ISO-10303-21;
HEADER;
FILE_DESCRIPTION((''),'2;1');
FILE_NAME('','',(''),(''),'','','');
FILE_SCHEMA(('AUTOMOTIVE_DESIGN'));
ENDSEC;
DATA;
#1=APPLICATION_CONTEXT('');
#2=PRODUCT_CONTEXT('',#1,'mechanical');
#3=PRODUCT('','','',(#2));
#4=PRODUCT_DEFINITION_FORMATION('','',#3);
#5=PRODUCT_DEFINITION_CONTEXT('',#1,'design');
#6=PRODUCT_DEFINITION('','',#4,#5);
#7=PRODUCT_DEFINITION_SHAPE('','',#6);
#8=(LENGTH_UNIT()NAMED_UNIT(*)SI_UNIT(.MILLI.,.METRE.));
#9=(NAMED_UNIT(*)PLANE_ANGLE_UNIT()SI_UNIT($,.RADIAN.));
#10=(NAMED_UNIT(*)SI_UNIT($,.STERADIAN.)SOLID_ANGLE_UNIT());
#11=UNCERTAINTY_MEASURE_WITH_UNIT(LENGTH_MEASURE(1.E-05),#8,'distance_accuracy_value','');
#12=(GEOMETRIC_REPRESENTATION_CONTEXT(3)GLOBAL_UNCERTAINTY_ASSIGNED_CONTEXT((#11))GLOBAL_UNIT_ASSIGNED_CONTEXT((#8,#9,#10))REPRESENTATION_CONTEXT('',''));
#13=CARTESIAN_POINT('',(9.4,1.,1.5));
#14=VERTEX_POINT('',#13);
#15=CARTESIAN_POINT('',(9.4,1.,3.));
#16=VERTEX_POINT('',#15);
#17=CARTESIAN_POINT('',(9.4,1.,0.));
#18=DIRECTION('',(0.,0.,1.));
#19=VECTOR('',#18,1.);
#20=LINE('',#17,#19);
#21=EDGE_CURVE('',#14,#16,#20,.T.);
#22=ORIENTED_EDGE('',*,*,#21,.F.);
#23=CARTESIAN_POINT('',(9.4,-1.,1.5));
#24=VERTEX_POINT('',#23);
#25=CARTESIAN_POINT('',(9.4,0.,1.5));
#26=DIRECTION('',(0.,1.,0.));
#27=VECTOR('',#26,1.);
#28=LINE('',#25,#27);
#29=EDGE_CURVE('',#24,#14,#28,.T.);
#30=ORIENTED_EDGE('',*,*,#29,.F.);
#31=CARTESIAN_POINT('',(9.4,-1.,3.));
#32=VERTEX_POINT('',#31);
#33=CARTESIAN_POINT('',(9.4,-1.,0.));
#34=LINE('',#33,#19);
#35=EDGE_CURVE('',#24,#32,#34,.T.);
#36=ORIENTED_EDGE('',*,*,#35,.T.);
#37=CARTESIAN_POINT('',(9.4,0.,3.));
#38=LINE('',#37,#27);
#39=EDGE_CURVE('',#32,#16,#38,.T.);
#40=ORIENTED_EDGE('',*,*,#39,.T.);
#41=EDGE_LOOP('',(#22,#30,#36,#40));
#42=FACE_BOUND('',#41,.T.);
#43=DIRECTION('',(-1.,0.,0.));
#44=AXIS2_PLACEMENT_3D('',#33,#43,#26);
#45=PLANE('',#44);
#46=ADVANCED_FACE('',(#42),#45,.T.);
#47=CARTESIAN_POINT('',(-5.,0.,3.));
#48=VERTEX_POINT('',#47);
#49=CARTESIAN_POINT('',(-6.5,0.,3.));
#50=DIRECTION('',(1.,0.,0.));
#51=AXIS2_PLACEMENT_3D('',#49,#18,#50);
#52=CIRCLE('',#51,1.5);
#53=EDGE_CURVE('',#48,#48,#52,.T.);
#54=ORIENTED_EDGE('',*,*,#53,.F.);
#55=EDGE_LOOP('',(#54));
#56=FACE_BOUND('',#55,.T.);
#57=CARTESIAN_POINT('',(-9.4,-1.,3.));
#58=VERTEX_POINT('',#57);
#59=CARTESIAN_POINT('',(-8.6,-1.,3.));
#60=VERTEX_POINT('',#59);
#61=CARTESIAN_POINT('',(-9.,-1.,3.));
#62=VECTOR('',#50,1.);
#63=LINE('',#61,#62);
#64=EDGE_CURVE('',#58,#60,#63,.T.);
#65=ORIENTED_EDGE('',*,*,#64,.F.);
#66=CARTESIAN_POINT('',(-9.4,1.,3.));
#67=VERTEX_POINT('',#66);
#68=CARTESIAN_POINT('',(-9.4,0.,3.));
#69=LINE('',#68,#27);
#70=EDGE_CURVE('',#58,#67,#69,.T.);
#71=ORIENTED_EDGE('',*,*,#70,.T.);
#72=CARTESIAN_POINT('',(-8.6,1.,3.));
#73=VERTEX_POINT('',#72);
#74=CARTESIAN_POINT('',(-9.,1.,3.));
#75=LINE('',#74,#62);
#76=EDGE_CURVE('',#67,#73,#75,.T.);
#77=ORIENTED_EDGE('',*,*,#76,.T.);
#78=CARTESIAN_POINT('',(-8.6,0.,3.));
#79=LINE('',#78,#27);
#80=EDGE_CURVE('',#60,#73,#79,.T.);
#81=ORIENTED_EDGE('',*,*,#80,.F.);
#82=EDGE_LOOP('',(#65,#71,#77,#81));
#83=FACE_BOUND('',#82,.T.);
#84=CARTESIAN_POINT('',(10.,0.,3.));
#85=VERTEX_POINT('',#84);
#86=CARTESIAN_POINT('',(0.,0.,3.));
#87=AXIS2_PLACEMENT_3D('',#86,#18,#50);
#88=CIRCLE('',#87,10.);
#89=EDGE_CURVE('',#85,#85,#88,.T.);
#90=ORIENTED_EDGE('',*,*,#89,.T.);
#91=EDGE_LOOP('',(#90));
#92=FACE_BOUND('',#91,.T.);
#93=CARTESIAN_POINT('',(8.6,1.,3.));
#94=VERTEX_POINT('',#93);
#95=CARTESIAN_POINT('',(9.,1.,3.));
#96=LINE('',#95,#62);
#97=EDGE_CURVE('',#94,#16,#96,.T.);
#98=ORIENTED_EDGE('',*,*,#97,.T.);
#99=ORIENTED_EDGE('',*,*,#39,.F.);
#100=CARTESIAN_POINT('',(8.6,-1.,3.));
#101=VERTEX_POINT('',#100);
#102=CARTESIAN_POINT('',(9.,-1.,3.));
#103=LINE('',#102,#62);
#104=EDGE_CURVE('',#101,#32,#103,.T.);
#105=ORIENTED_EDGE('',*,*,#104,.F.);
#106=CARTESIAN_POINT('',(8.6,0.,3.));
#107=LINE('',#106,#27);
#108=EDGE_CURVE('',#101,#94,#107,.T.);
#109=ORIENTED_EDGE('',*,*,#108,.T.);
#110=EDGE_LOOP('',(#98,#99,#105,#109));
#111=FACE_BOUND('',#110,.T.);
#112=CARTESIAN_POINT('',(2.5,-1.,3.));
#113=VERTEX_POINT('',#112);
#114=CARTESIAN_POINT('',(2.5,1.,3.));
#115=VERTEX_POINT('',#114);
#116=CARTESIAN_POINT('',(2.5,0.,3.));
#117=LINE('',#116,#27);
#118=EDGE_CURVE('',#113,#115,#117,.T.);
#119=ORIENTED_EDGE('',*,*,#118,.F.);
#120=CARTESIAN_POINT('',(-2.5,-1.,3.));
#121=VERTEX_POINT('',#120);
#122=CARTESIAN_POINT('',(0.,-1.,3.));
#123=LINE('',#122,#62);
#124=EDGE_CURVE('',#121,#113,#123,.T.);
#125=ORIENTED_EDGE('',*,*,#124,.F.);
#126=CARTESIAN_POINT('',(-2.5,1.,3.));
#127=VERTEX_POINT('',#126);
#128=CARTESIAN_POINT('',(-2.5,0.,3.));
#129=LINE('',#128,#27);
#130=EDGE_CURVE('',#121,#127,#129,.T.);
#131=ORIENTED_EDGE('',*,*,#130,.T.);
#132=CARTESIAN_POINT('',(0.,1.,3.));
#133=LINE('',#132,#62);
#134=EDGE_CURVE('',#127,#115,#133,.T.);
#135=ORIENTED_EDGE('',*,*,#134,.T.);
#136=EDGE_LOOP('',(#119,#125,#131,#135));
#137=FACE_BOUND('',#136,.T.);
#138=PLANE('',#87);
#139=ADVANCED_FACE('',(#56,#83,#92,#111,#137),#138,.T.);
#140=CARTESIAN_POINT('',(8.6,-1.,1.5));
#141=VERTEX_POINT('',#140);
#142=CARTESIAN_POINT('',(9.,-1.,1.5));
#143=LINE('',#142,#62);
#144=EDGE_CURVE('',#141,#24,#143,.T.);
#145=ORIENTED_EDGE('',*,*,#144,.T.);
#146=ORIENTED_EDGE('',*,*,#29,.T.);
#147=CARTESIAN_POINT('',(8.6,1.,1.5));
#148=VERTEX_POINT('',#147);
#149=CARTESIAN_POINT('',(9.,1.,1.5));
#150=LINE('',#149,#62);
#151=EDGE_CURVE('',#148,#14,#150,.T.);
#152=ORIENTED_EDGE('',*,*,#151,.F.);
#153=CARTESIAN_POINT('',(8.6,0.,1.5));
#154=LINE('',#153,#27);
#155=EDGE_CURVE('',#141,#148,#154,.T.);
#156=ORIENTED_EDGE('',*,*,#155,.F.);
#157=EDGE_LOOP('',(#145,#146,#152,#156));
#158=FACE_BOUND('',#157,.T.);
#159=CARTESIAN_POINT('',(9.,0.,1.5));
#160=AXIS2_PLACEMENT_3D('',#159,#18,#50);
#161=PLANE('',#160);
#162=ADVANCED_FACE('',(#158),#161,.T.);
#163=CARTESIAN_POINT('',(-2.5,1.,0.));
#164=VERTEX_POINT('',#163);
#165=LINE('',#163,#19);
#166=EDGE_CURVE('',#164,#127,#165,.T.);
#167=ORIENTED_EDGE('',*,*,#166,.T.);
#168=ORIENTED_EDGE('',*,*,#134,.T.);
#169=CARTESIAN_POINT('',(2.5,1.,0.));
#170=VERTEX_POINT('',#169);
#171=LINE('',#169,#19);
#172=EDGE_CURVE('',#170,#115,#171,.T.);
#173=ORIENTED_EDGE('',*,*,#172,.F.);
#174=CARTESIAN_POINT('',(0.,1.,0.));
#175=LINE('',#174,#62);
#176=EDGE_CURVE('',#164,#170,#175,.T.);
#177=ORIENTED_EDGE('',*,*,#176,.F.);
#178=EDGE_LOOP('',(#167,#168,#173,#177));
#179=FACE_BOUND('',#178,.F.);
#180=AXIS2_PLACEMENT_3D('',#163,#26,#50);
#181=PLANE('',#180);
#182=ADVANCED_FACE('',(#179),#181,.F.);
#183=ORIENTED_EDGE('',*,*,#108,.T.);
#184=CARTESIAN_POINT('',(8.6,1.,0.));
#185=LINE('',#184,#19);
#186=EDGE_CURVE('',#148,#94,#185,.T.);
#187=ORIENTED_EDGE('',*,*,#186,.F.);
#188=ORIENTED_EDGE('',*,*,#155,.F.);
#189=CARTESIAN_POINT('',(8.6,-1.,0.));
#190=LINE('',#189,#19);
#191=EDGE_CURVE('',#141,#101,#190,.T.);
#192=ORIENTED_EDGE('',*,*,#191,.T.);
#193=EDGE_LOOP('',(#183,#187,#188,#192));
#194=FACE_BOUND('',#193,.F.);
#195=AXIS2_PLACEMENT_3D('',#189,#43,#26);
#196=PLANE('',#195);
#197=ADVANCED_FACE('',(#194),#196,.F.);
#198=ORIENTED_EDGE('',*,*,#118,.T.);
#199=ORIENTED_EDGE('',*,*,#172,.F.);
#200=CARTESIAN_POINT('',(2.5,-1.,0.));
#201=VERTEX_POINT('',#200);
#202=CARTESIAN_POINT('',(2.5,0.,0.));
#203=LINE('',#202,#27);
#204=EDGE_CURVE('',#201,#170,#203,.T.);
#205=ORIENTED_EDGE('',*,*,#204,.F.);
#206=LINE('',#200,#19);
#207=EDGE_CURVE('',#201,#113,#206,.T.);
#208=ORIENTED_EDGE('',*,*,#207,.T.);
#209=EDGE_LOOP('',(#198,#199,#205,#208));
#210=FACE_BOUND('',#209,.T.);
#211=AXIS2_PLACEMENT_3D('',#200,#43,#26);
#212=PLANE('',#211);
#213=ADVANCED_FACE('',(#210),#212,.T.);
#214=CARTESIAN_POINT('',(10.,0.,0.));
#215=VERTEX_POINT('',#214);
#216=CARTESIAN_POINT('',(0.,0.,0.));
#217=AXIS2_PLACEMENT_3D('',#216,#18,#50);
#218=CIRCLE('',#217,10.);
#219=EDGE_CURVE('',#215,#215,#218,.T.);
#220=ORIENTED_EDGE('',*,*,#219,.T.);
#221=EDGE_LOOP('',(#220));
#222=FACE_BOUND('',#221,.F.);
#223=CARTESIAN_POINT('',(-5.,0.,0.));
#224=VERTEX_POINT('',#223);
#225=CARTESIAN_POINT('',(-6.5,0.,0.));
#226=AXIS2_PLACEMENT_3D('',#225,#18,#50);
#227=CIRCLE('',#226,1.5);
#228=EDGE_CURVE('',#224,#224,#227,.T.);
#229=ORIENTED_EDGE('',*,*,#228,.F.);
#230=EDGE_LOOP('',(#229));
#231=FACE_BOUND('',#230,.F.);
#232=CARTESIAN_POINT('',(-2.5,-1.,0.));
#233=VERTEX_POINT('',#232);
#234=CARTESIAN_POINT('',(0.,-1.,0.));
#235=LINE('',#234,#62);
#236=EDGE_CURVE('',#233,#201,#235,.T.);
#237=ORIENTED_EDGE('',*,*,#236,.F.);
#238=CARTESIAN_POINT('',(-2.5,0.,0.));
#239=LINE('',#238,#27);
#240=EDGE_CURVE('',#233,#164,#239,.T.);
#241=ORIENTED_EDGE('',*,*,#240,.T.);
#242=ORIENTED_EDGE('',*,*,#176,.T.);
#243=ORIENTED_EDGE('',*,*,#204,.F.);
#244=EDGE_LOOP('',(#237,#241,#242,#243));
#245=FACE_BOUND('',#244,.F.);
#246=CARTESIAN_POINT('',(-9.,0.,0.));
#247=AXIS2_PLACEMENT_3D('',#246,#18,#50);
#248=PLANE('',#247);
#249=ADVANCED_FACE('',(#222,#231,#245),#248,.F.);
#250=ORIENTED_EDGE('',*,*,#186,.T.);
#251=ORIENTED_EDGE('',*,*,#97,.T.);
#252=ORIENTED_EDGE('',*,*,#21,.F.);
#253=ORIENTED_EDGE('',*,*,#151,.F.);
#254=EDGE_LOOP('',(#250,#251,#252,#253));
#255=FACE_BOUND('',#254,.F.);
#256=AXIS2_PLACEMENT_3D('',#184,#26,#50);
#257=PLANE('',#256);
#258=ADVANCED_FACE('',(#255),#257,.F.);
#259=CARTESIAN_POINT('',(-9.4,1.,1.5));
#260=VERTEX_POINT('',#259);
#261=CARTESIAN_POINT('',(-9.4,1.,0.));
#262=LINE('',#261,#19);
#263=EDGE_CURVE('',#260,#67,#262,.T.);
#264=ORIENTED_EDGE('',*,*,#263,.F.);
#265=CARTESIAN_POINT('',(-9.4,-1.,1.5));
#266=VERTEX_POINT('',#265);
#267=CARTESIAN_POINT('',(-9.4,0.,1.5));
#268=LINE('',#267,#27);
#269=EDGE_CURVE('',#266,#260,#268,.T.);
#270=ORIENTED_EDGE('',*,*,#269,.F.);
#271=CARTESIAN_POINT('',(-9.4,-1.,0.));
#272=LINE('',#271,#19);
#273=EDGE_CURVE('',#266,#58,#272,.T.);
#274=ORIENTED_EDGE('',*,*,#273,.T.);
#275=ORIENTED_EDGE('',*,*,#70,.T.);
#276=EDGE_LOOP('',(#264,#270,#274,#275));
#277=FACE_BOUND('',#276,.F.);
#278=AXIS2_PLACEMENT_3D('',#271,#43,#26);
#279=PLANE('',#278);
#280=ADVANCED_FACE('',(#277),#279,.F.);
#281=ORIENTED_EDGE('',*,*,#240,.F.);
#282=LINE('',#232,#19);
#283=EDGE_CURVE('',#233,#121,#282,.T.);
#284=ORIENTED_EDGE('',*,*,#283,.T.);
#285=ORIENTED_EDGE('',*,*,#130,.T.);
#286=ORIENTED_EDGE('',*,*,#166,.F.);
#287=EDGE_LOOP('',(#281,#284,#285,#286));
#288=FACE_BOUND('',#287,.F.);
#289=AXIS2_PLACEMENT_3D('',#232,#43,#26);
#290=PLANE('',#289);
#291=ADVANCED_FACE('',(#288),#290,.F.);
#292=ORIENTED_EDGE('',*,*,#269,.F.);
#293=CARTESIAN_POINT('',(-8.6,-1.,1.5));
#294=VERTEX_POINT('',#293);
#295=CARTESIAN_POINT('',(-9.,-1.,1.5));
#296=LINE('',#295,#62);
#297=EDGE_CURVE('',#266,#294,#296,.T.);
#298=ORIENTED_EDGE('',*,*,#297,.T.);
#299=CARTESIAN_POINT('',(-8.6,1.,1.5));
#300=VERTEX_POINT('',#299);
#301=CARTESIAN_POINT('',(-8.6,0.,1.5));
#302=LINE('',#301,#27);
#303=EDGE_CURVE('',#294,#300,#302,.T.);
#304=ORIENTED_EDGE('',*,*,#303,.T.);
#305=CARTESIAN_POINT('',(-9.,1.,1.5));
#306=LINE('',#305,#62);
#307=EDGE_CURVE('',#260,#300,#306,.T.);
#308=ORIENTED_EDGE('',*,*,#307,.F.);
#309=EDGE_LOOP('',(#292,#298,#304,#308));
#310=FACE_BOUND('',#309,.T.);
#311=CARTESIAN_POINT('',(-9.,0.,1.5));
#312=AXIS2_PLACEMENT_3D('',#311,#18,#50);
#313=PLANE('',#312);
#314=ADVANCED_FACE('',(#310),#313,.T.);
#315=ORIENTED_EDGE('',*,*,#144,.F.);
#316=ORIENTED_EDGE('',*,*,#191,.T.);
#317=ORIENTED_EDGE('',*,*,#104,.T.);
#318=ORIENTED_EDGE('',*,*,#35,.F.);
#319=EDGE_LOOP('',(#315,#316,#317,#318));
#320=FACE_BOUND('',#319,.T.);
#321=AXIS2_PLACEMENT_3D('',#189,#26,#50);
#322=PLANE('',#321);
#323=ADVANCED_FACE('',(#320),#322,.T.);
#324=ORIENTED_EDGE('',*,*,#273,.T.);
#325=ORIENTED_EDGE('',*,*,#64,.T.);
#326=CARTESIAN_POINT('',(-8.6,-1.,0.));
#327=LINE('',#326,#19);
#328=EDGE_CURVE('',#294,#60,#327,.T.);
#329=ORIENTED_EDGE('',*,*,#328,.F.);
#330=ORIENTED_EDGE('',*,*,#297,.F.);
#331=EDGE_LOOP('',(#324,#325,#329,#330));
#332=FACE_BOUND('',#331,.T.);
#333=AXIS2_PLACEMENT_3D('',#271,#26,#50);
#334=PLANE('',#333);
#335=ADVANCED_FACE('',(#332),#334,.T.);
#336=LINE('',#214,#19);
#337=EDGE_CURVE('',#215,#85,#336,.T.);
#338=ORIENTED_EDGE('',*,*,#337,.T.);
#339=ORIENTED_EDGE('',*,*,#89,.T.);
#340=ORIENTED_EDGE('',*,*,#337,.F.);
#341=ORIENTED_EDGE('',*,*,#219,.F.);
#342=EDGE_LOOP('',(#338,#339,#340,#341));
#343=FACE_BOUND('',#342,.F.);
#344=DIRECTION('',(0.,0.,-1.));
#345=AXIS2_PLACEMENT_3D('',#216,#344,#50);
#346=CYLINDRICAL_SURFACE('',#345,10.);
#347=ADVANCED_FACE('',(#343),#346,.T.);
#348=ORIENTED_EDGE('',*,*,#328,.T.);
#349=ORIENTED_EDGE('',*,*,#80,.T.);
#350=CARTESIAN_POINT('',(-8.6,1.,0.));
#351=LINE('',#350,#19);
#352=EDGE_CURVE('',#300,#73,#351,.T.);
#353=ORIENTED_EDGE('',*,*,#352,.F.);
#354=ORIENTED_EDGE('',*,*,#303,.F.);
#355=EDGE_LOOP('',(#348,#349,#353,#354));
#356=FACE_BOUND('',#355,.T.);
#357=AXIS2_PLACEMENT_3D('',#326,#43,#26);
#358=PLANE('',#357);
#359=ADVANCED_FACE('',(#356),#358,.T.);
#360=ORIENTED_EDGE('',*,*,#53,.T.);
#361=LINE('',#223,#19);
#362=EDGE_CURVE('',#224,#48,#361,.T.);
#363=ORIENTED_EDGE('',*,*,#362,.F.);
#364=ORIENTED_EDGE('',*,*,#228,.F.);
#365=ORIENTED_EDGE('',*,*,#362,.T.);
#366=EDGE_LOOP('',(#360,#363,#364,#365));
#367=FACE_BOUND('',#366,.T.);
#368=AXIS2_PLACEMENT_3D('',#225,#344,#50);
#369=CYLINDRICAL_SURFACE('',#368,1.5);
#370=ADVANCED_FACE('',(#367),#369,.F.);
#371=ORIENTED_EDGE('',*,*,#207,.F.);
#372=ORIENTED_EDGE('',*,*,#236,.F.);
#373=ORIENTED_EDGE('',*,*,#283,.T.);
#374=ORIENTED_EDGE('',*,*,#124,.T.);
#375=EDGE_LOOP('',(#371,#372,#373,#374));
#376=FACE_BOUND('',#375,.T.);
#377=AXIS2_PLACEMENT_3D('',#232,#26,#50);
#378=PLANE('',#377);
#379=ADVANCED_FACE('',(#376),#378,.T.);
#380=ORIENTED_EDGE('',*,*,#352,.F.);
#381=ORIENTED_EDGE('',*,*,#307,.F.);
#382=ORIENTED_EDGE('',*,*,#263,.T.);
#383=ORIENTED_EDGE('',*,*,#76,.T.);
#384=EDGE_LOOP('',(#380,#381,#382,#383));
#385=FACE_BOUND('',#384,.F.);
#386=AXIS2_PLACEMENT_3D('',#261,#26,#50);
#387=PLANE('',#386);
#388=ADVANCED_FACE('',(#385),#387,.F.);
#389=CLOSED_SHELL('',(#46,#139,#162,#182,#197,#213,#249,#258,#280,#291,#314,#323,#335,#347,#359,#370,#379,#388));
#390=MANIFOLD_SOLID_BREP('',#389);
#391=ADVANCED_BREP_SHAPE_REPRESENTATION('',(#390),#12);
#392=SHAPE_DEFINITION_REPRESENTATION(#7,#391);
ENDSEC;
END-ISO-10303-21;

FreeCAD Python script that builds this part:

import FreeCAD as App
import Part
import Sketcher

V = App.Vector
Q = App.Units.Quantity

doc = App.newDocument("Part")
body = doc.addObject("PartDesign::Body", "Body")

# Sketch on XY plane
sketch1 = doc.addObject("Sketcher::SketchObject", "Sketch")
body.addObject(sketch1)
sketch1.AttachmentSupport = (doc.XY_Plane, [""])
sketch1.MapMode = "FlatFace"
sketch1.addGeometry(Part.Circle(V(0, 0, 0), V(0, 0, 1), 10), False)
sketch1.addGeometry(Part.LineSegment(V(-8.6, -1, 0), V(-9.4, -1, 0)), False)
sketch1.addGeometry(Part.LineSegment(V(-9.4, -1, 0), V(-9.4, 1, 0)), False)
sketch1.addGeometry(Part.LineSegment(V(-9.4, 1, 0), V(-8.6, 1, 0)), False)
sketch1.addGeometry(Part.LineSegment(V(-8.6, 1, 0), V(-8.6, -1, 0)), False)
sketch1.addGeometry(Part.Circle(V(-6.5, 0, 0), V(0, 0, 1), 1.5), False)
sketch1.addGeometry(Part.LineSegment(V(2.5, -1, 0), V(-2.5, -1, 0)), False)
sketch1.addGeometry(Part.LineSegment(V(-2.5, -1, 0), V(-2.5, 1, 0)), False)
sketch1.addGeometry(Part.LineSegment(V(-2.5, 1, 0), V(2.5, 1, 0)), False)
sketch1.addGeometry(Part.LineSegment(V(2.5, 1, 0), V(2.5, -1, 0)), False)
sketch1.addGeometry(Part.LineSegment(V(9.4, -1, 0), V(8.6, -1, 0)), False)
sketch1.addGeometry(Part.LineSegment(V(8.6, -1, 0), V(8.6, 1, 0)), False)
sketch1.addGeometry(Part.LineSegment(V(8.6, 1, 0), V(9.4, 1, 0)), False)
sketch1.addGeometry(Part.LineSegment(V(9.4, 1, 0), V(9.4, -1, 0)), False)
sketch1.addConstraint(Sketcher.Constraint("Coincident", 1, 2, 2, 1))
sketch1.addConstraint(Sketcher.Constraint("Coincident", 2, 2, 3, 1))
sketch1.addConstraint(Sketcher.Constraint("Coincident", 3, 2, 4, 1))
sketch1.addConstraint(Sketcher.Constraint("Coincident", 4, 2, 1, 1))
sketch1.addConstraint(Sketcher.Constraint("Coincident", 6, 2, 7, 1))
sketch1.addConstraint(Sketcher.Constraint("Coincident", 7, 2, 8, 1))
sketch1.addConstraint(Sketcher.Constraint("Coincident", 8, 2, 9, 1))
sketch1.addConstraint(Sketcher.Constraint("Coincident", 9, 2, 6, 1))
sketch1.addConstraint(Sketcher.Constraint("Coincident", 10, 2, 11, 1))
sketch1.addConstraint(Sketcher.Constraint("Coincident", 11, 2, 12, 1))
sketch1.addConstraint(Sketcher.Constraint("Coincident", 12, 2, 13, 1))
sketch1.addConstraint(Sketcher.Constraint("Coincident", 13, 2, 10, 1))
sketch1.addConstraint(Sketcher.Constraint("Horizontal", 1))
sketch1.addConstraint(Sketcher.Constraint("Vertical", 2))
sketch1.addConstraint(Sketcher.Constraint("Horizontal", 3))
sketch1.addConstraint(Sketcher.Constraint("Vertical", 4))
sketch1.addConstraint(Sketcher.Constraint("Horizontal", 6))
sketch1.addConstraint(Sketcher.Constraint("Vertical", 7))
sketch1.addConstraint(Sketcher.Constraint("Horizontal", 8))
sketch1.addConstraint(Sketcher.Constraint("Vertical", 9))
sketch1.addConstraint(Sketcher.Constraint("Horizontal", 10))
sketch1.addConstraint(Sketcher.Constraint("Vertical", 11))
sketch1.addConstraint(Sketcher.Constraint("Horizontal", 12))
sketch1.addConstraint(Sketcher.Constraint("Vertical", 13))
sketch1.addConstraint(Sketcher.Constraint("Coincident", 0, 3, -1, 1))
sketch1.addConstraint(Sketcher.Constraint("Symmetric", 6, 2, 8, 2, -1, 1))
sketch1.addConstraint(Sketcher.Constraint("Symmetric", 3, 2, 10, 2, -1, 1))
sketch1.addConstraint(Sketcher.Constraint("Symmetric", 1, 2, 12, 2, -1, 1))
sketch1.addConstraint(Sketcher.Constraint("PointOnObject", 5, 3, -1))
sketch1.addConstraint(Sketcher.Constraint("Horizontal", 4, 2, 6, 2))
sketch1.addConstraint(Sketcher.Constraint("Horizontal", 3, 2, 7, 2))
sketch1.addConstraint(Sketcher.Constraint("Diameter", 0, Q("20 mm")))
sketch1.addConstraint(Sketcher.Constraint("Diameter", 5, Q("3 mm")))
sketch1.addConstraint(Sketcher.Constraint("DistanceX", 6, 2, 6, 1, Q("5 mm")))
sketch1.addConstraint(Sketcher.Constraint("DistanceY", 2, 1, 2, 2, Q("2 mm")))
sketch1.addConstraint(Sketcher.Constraint("DistanceX", 1, 2, 1, 1, Q("0.8 mm")))
sketch1.addConstraint(Sketcher.Constraint("DistanceX", 5, 3, 6, 2, Q("4 mm")))
sketch1.addConstraint(Sketcher.Constraint("DistanceX", 1, 2, -1, 1, Q("9.4 mm")))
pad1 = doc.addObject("PartDesign::Pad", "Pad")
body.addObject(pad1)
pad1.Profile = sketch1
pad1.Length = 3

# Sketch on XY plane
sketch2 = doc.addObject("Sketcher::SketchObject", "Sketch001")
body.addObject(sketch2)
sketch2.AttachmentSupport = (doc.XY_Plane, [""])
sketch2.MapMode = "FlatFace"
sketch2.addGeometry(Part.LineSegment(V(-9.4, 1, 0), V(-9.4, -1, 0)), False)
sketch2.addGeometry(Part.LineSegment(V(-9.4, -1, 0), V(-8.6, -1, 0)), False)
sketch2.addGeometry(Part.LineSegment(V(-8.6, -1, 0), V(-8.6, 1, 0)), False)
sketch2.addGeometry(Part.LineSegment(V(-8.6, 1, 0), V(-9.4, 1, 0)), False)
sketch2.addGeometry(Part.LineSegment(V(8.6, 1, 0), V(8.6, -1, 0)), False)
sketch2.addGeometry(Part.LineSegment(V(8.6, -1, 0), V(9.4, -1, 0)), False)
sketch2.addGeometry(Part.LineSegment(V(9.4, -1, 0), V(9.4, 1, 0)), False)
sketch2.addGeometry(Part.LineSegment(V(9.4, 1, 0), V(8.6, 1, 0)), False)
sketch2.addConstraint(Sketcher.Constraint("Coincident", 0, 2, 1, 1))
sketch2.addConstraint(Sketcher.Constraint("Coincident", 1, 2, 2, 1))
sketch2.addConstraint(Sketcher.Constraint("Coincident", 2, 2, 3, 1))
sketch2.addConstraint(Sketcher.Constraint("Coincident", 3, 2, 0, 1))
sketch2.addConstraint(Sketcher.Constraint("Coincident", 4, 2, 5, 1))
sketch2.addConstraint(Sketcher.Constraint("Coincident", 5, 2, 6, 1))
sketch2.addConstraint(Sketcher.Constraint("Coincident", 6, 2, 7, 1))
sketch2.addConstraint(Sketcher.Constraint("Coincident", 7, 2, 4, 1))
sketch2.addConstraint(Sketcher.Constraint("Vertical", 0))
sketch2.addConstraint(Sketcher.Constraint("Horizontal", 1))
sketch2.addConstraint(Sketcher.Constraint("Vertical", 2))
sketch2.addConstraint(Sketcher.Constraint("Horizontal", 3))
sketch2.addConstraint(Sketcher.Constraint("Vertical", 4))
sketch2.addConstraint(Sketcher.Constraint("Horizontal", 5))
sketch2.addConstraint(Sketcher.Constraint("Vertical", 6))
sketch2.addConstraint(Sketcher.Constraint("Horizontal", 7))
sketch2.addConstraint(Sketcher.Constraint("Symmetric", 2, 2, 4, 2, -1, 1))
sketch2.addConstraint(Sketcher.Constraint("Symmetric", 0, 2, 6, 2, -1, 1))
sketch2.addConstraint(Sketcher.Constraint("Horizontal", 1, 2, 4, 2))
sketch2.addConstraint(Sketcher.Constraint("DistanceY", 0, 2, 0, 1, Q("2 mm")))
sketch2.addConstraint(Sketcher.Constraint("DistanceX", 1, 1, 1, 2, Q("0.8 mm")))
sketch2.addConstraint(Sketcher.Constraint("DistanceX", 0, 2, 4, 2, Q("18 mm")))
pad2 = doc.addObject("PartDesign::Pad", "Pad001")
body.addObject(pad2)
pad2.Profile = sketch2
pad2.Length = 1.5

doc.recompute()
